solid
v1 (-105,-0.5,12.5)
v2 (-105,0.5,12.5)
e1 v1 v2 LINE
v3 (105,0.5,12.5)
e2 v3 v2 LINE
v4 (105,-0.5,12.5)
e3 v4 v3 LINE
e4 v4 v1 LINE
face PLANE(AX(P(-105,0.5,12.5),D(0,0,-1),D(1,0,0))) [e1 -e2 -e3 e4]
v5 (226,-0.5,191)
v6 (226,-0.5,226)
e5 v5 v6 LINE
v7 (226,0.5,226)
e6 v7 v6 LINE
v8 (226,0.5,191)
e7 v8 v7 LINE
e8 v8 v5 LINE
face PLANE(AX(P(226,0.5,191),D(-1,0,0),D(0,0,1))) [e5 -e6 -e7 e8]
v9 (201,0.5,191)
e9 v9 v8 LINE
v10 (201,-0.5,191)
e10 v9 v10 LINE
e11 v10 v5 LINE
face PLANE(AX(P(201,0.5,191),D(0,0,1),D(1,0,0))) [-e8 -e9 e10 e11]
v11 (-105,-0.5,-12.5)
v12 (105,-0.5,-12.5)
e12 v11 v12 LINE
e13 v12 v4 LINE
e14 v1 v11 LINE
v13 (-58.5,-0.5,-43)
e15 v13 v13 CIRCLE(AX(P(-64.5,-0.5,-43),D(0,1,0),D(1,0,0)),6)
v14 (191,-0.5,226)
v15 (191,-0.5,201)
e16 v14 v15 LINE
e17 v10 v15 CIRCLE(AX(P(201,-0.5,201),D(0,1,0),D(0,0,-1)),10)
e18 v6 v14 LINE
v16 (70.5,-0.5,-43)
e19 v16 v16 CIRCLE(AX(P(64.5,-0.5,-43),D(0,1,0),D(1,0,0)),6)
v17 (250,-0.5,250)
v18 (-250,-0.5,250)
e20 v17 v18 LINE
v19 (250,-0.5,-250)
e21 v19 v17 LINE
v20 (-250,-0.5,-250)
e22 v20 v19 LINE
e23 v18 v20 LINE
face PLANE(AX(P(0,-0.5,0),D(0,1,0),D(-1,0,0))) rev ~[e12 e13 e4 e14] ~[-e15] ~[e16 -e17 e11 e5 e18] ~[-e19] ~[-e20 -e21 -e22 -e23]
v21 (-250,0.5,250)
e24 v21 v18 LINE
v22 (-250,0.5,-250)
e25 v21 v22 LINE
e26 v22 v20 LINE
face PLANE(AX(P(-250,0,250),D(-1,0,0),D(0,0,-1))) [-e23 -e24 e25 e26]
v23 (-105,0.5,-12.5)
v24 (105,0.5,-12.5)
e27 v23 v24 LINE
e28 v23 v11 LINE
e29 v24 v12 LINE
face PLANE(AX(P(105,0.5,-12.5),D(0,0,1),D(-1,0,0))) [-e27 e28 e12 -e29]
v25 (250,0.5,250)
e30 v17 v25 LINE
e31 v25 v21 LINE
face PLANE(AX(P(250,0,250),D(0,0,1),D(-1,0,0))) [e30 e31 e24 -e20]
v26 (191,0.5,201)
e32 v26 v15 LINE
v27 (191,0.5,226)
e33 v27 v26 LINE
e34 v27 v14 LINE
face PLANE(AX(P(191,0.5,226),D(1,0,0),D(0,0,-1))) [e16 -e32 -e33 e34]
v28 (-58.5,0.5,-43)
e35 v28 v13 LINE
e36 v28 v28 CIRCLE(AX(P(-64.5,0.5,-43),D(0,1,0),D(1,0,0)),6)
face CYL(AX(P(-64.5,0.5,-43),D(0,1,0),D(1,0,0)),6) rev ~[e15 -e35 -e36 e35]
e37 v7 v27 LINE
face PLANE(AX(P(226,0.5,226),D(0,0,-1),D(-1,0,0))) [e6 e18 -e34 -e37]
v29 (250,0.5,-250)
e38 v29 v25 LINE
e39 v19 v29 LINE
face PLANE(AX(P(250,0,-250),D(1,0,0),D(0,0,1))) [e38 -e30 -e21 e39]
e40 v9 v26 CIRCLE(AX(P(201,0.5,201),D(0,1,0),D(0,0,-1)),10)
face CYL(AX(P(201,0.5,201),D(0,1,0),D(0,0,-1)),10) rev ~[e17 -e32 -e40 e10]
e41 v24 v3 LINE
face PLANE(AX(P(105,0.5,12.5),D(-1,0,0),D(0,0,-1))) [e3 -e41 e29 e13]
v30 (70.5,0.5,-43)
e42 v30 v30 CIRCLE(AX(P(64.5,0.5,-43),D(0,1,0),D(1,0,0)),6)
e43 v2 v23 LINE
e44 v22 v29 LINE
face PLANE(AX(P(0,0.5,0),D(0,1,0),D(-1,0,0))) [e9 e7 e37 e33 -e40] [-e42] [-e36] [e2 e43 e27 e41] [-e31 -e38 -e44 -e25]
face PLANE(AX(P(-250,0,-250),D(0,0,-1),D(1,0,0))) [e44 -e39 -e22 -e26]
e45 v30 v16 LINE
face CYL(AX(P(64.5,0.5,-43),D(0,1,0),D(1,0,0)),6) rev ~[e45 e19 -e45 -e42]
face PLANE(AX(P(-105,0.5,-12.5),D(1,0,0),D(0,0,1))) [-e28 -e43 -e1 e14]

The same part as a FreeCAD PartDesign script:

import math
import FreeCAD as App
import Part
import Sketcher

V = App.Vector
Q = App.Units.Quantity

doc = App.newDocument("Part")
body = doc.addObject("PartDesign::Body", "Body")

# Sketch on XZ plane
sketch1 = doc.addObject("Sketcher::SketchObject", "Sketch")
body.addObject(sketch1)
sketch1.AttachmentSupport = (doc.XZ_Plane, [""])
sketch1.MapMode = "FlatFace"
sketch1.addGeometry([
    Part.LineSegment(V(-250, 250, 0), V(250, 250, 0)),
    Part.LineSegment(V(250, 250, 0), V(250, -250, 0)),
    Part.LineSegment(V(250, -250, 0), V(-250, -250, 0)),
    Part.LineSegment(V(-250, -250, 0), V(-250, 250, 0)),
], False)
sketch1.addConstraint([
    Sketcher.Constraint("Coincident", 0, 2, 1, 1),
    Sketcher.Constraint("Coincident", 1, 2, 2, 1),
    Sketcher.Constraint("Coincident", 2, 2, 3, 1),
    Sketcher.Constraint("Coincident", 3, 2, 0, 1),
    Sketcher.Constraint("Horizontal", 0),
    Sketcher.Constraint("Vertical", 1),
    Sketcher.Constraint("Horizontal", 2),
    Sketcher.Constraint("Vertical", 3),
    Sketcher.Constraint("Symmetric", 0, 2, 2, 2, -1, 1),
    Sketcher.Constraint("Equal", 2, 1),
    Sketcher.Constraint("DistanceX", 0, 1, 0, 2, Q("500 mm")),
])
pad1 = doc.addObject("PartDesign::Pad", "Pad")
body.addObject(pad1)
pad1.Profile = sketch1
pad1.Length = 1
pad1.Midplane = True

# Sketch on XZ plane
sketch2 = doc.addObject("Sketcher::SketchObject", "Sketch001")
body.addObject(sketch2)
sketch2.AttachmentSupport = (doc.XZ_Plane, [""])
sketch2.MapMode = "FlatFace"
sketch2.AttachmentOffset = App.Placement(V(0, 0, -0.5), App.Rotation())
sketch2.addGeometry([
    Part.LineSegment(V(-105, -12.5, 0), V(-105, 12.5, 0)),
    Part.LineSegment(V(-105, 12.5, 0), V(105, 12.5, 0)),
    Part.LineSegment(V(105, 12.5, 0), V(105, -12.5, 0)),
    Part.LineSegment(V(105, -12.5, 0), V(-105, -12.5, 0)),
], False)
sketch2.addConstraint([
    Sketcher.Constraint("Coincident", 0, 2, 1, 1),
    Sketcher.Constraint("Coincident", 1, 2, 2, 1),
    Sketcher.Constraint("Coincident", 2, 2, 3, 1),
    Sketcher.Constraint("Coincident", 3, 2, 0, 1),
    Sketcher.Constraint("Vertical", 0),
    Sketcher.Constraint("Horizontal", 1),
    Sketcher.Constraint("Vertical", 2),
    Sketcher.Constraint("Horizontal", 3),
    Sketcher.Constraint("Symmetric", 0, 2, 2, 2, -1, 1),
    Sketcher.Constraint("DistanceX", 1, 1, 1, 2, Q("210 mm")),
    Sketcher.Constraint("DistanceY", 0, 1, 0, 2, Q("25 mm")),
])
pocket1 = doc.addObject("PartDesign::Pocket", "Pocket")
body.addObject(pocket1)
pocket1.Profile = sketch2
pocket1.Length = 42.75
pocket1.Midplane = True

# Sketch on XZ plane
sketch3 = doc.addObject("Sketcher::SketchObject", "Sketch002")
body.addObject(sketch3)
sketch3.AttachmentSupport = (doc.XZ_Plane, [""])
sketch3.MapMode = "FlatFace"
sketch3.AttachmentOffset = App.Placement(V(0, 0, -0.5), App.Rotation())
sketch3.addGeometry([
    Part.Circle(V(-64.5, -43, 0), V(0, 0, 1), 6),  # 0
    Part.Circle(V(64.5, -43, 0), V(0, 0, 1), 6),  # 1
    Part.LineSegment(V(191, 226, 0), V(226, 226, 0)),  # 2
    Part.LineSegment(V(226, 226, 0), V(226, 191, 0)),  # 3
    Part.LineSegment(V(226, 191, 0), V(201, 191, 0)),  # 4
    Part.ArcOfCircle(Part.Circle(V(201, 201, 0), V(0, 0, 1), 10), math.radians(180), math.radians(270)),  # 5
    Part.LineSegment(V(191, 201, 0), V(191, 226, 0)),  # 6
], False)
sketch3.addConstraint([
    Sketcher.Constraint("Coincident", 2, 2, 3, 1),
    Sketcher.Constraint("Coincident", 3, 2, 4, 1),
    Sketcher.Constraint("Tangent", 4, 2, 5, 2),
    Sketcher.Constraint("Tangent", 5, 1, 6, 1),
    Sketcher.Constraint("Coincident", 6, 2, 2, 1),
    Sketcher.Constraint("Horizontal", 2),
    Sketcher.Constraint("Vertical", 3),
    Sketcher.Constraint("Horizontal", 4),
    Sketcher.Constraint("Vertical", 6),
    Sketcher.Constraint("Equal", 0, 1),
    Sketcher.Constraint("Symmetric", 0, 3, 1, 3, -2),
    Sketcher.Constraint("Equal", 2, 3),
    Sketcher.Constraint("Diameter", 0, Q("12 mm")),
    Sketcher.Constraint("Radius", 5, Q("10 mm")),
    Sketcher.Constraint("DistanceX", 2, 1, 2, 2, Q("35 mm")),
    Sketcher.Constraint("DistanceX", 0, 3, 1, 3, Q("129 mm")),
    Sketcher.Constraint("DistanceY", 0, 3, -1, 1, Q("43 mm")),
    Sketcher.Constraint("DistanceX", -1, 1, 5, 3, Q("201 mm")),
    Sketcher.Constraint("DistanceY", -1, 1, 5, 3, Q("201 mm")),
])
pocket2 = doc.addObject("PartDesign::Pocket", "Pocket001")
body.addObject(pocket2)
pocket2.Profile = sketch3
pocket2.Length = 1
pocket2.Reversed = True

doc.recompute()
